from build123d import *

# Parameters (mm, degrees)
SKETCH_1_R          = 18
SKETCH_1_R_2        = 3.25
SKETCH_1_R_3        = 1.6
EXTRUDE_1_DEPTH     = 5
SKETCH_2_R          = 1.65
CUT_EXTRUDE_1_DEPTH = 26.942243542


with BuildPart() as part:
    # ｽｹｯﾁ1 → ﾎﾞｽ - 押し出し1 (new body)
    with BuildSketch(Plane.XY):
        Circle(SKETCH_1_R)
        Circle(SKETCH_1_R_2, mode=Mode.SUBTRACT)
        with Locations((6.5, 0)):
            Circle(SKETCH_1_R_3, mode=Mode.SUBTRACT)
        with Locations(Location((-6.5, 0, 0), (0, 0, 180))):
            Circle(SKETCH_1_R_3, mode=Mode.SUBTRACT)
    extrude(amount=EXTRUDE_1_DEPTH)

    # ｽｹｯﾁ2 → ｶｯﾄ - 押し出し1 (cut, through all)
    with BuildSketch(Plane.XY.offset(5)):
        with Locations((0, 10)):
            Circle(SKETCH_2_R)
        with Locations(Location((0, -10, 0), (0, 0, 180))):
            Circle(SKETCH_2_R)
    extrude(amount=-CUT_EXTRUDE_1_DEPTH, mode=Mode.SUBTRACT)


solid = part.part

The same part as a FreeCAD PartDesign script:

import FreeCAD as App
import Part
import Sketcher
from FreeCAD import Vector
Q = App.Units.Quantity

doc = App.newDocument("Part")
body = doc.addObject("PartDesign::Body", "Body")

# Sketch on XY plane
sketch1 = body.newObject("Sketcher::SketchObject", "Sketch")
sketch1.AttachmentSupport = (doc.getObject("XY_Plane"), [""])
sketch1.MapMode = "FlatFace"
sketch1.addGeometry(Part.Circle(Vector(0, 0, 0), Vector(0, 0, 1), 18), False)
sketch1.addGeometry(Part.Circle(Vector(-6.5, 0, 0), Vector(0, 0, 1), 1.6), False)
sketch1.addGeometry(Part.Circle(Vector(0, 0, 0), Vector(0, 0, 1), 3.2), False)
sketch1.addGeometry(Part.Circle(Vector(6.5, 0, 0), Vector(0, 0, 1), 1.6), False)
sketch1.addConstraint(Sketcher.Constraint("Coincident", 0, 3, -1, 1))
sketch1.addConstraint(Sketcher.Constraint("Coincident", 2, 3, -1, 1))
sketch1.addConstraint(Sketcher.Constraint("Equal", 1, 3))
sketch1.addConstraint(Sketcher.Constraint("Symmetric", 1, 3, 3, 3, -1, 1))
sketch1.addConstraint(Sketcher.Constraint("PointOnObject", 1, 3, -1))
sketch1.addConstraint(Sketcher.Constraint("Diameter", 0, Q("36 mm")))
sketch1.addConstraint(Sketcher.Constraint("Diameter", 1, Q("3.2 mm")))
sketch1.addConstraint(Sketcher.Constraint("Diameter", 2, Q("6.5 mm")))
sketch1.addConstraint(Sketcher.Constraint("DistanceX", 1, 3, 3, 3, Q("13 mm")))
pad1 = body.newObject("PartDesign::Pad", "Pad")
pad1.Profile = sketch1
pad1.Length = 5

# Sketch on XY plane
sketch2 = body.newObject("Sketcher::SketchObject", "Sketch001")
sketch2.AttachmentSupport = (doc.getObject("XY_Plane"), [""])
sketch2.MapMode = "FlatFace"
sketch2.AttachmentOffset = App.Placement(Vector(0, 0, 5), App.Rotation())
sketch2.addGeometry(Part.Circle(Vector(0, 10, 0), Vector(0, 0, 1), 1.6), False)
sketch2.addGeometry(Part.Circle(Vector(0, -10, 0), Vector(0, 0, 1), 1.6), False)
sketch2.addConstraint(Sketcher.Constraint("Equal", 0, 1))
sketch2.addConstraint(Sketcher.Constraint("Symmetric", 0, 3, 1, 3, -1, 1))
sketch2.addConstraint(Sketcher.Constraint("PointOnObject", 0, 3, -2))
sketch2.addConstraint(Sketcher.Constraint("Diameter", 0, Q("3.3 mm")))
sketch2.addConstraint(Sketcher.Constraint("DistanceY", -1, 1, 0, 3, Q("10 mm")))
pocket1 = body.newObject("PartDesign::Pocket", "Pocket")
pocket1.Profile = sketch2
pocket1.Type = "ThroughAll"

doc.recompute()
